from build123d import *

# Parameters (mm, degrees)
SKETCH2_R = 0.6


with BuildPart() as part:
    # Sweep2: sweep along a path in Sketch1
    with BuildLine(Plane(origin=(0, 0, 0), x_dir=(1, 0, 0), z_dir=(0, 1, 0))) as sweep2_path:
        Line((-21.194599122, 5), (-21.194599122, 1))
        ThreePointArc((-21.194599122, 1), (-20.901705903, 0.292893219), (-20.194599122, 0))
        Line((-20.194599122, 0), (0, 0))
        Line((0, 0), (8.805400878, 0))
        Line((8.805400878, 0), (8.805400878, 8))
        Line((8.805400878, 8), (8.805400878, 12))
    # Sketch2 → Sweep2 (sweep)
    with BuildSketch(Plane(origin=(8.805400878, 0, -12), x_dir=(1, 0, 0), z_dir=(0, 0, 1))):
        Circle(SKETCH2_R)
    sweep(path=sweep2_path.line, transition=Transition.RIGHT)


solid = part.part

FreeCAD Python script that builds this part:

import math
import FreeCAD as App
import Part
import Sketcher
from FreeCAD import Vector

doc = App.newDocument("Part")
body = doc.addObject("PartDesign::Body", "Body")

sketch1 = doc.addObject("Sketcher::SketchObject", "Sketch")
body.addObject(sketch1)
sketch1.AttachmentSupport = (doc.XY_Plane, [""])
sketch1.MapMode = "FlatFace"
sketch1.AttachmentOffset = App.Placement(Vector(0, 0, -12), App.Rotation())
sketch1.addGeometry(Part.Circle(Vector(8.8, 0, 0), Vector(0, 0, 1), 0.6), False)
sketch1.addConstraint(Sketcher.Constraint("PointOnObject", 0, 3, -1))
sketch1.addConstraint(Sketcher.Constraint("Diameter", 0, 1.2))
sketch1.addConstraint(Sketcher.Constraint("DistanceX", -1, 1, 0, 3, 8.805401))

sketch2 = doc.addObject("Sketcher::SketchObject", "Sketch001")
body.addObject(sketch2)
sketch2.AttachmentSupport = (doc.XZ_Plane, [""])
sketch2.MapMode = "FlatFace"
sketch2.addGeometry(Part.LineSegment(Vector(-21.2, -5, 0), Vector(-21.2, -1, 0)), False)
sketch2.addGeometry(Part.ArcOfCircle(Part.Circle(Vector(-20.2, -1, 0), Vector(0, 0, 1), 1), math.radians(90), math.radians(180)), False)
sketch2.addGeometry(Part.LineSegment(Vector(-20.2, 0, 0), Vector(8.8, 0, 0)), False)
sketch2.addGeometry(Part.LineSegment(Vector(8.8, 0, 0), Vector(8.8, -12, 0)), False)
sketch2.addConstraint(Sketcher.Constraint("Tangent", 0, 2, 1, 2))
sketch2.addConstraint(Sketcher.Constraint("Tangent", 1, 1, 2, 1))
sketch2.addConstraint(Sketcher.Constraint("Coincident", 2, 2, 3, 1))
sketch2.addConstraint(Sketcher.Constraint("Vertical", 0))
sketch2.addConstraint(Sketcher.Constraint("Horizontal", 2))
sketch2.addConstraint(Sketcher.Constraint("Vertical", 3))
sketch2.addConstraint(Sketcher.Constraint("PointOnObject", 1, 1, -1))
sketch2.addConstraint(Sketcher.Constraint("Radius", 1, 1.0))
sketch2.addConstraint(Sketcher.Constraint("DistanceX", 2, 1, 2, 2, 29.0))
sketch2.addConstraint(Sketcher.Constraint("DistanceY", 0, 1, 0, 2, 4.0))
sketch2.addConstraint(Sketcher.Constraint("DistanceY", 3, 2, 3, 1, 12.0))
sketch2.addConstraint(Sketcher.Constraint("DistanceX", 1, 3, -1, 1, 20.194599))
doc.recompute()

additivepipe = doc.addObject("PartDesign::AdditivePipe", "AdditivePipe")
body.addObject(additivepipe)
additivepipe.Profile = sketch1
additivepipe.Spine = (sketch2, ["Edge1", "Edge2", "Edge3", "Edge4"])
additivepipe.Transition = "Right corner"

doc.recompute()
